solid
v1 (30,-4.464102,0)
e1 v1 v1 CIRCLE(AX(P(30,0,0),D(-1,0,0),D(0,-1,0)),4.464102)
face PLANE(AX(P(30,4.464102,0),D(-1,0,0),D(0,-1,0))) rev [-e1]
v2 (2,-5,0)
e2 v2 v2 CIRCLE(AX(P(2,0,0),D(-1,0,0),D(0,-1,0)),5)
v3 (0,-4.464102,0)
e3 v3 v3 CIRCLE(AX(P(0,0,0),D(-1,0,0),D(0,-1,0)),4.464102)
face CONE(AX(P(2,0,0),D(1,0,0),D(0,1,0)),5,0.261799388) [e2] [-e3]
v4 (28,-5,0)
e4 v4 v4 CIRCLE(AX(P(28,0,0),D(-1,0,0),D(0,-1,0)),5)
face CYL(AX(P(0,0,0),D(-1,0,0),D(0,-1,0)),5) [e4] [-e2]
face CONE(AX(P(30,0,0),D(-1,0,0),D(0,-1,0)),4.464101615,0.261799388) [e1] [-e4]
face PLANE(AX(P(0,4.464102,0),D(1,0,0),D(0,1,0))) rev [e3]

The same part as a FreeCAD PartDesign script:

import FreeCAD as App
import Part
import Sketcher
from FreeCAD import Vector
Q = App.Units.Quantity


def add_polygon(sketch, points):
    """Adds a closed chain of lines whose ends are joined by coincident constraints."""
    first, n = sketch.GeometryCount, len(points)
    for a, b in zip(points, points[1:] + points[:1]):
        sketch.addGeometry(Part.LineSegment(App.Vector(*a, 0), App.Vector(*b, 0)), False)
    for i in range(n):
        sketch.addConstraint(Sketcher.Constraint("Coincident", first + i, 2, first + (i + 1) % n, 1))

doc = App.newDocument("Part")
body = doc.addObject("PartDesign::Body", "Body")

sketch1 = body.newObject("Sketcher::SketchObject", "Sketch")
sketch1.AttachmentSupport = (doc.getObject("XY_Plane"), [""])
sketch1.MapMode = "FlatFace"
add_polygon(sketch1, [(30, 4.464102), (28, 5), (2, 5), (0, 4.464102), (0, 0), (30, 0)])
sketch1.addConstraint([
    Sketcher.Constraint("Horizontal", 1),
    Sketcher.Constraint("Vertical", 3),
    Sketcher.Constraint("Horizontal", 4),
    Sketcher.Constraint("Vertical", 5),
    Sketcher.Constraint("Coincident", 3, 2, -1, 1),
    Sketcher.Constraint("Horizontal", 2, 2, 5, 2),
    Sketcher.Constraint("Equal", 0, 2),
    Sketcher.Constraint("DistanceX", 1, 2, 1, 1, Q("26 mm")),
    Sketcher.Constraint("DistanceX", 4, 1, 4, 2, Q("30 mm")),
    Sketcher.Constraint("Angle", 0, Q("165 deg")),
    Sketcher.Constraint("DistanceY", -1, 1, 0, 2, Q("5 mm")),
])
revolution = body.newObject("PartDesign::Revolution", "Revolution")
revolution.Profile = sketch1
revolution.ReferenceAxis = (sketch1, ["H_Axis"])
revolution.Angle = 360

doc.recompute()
